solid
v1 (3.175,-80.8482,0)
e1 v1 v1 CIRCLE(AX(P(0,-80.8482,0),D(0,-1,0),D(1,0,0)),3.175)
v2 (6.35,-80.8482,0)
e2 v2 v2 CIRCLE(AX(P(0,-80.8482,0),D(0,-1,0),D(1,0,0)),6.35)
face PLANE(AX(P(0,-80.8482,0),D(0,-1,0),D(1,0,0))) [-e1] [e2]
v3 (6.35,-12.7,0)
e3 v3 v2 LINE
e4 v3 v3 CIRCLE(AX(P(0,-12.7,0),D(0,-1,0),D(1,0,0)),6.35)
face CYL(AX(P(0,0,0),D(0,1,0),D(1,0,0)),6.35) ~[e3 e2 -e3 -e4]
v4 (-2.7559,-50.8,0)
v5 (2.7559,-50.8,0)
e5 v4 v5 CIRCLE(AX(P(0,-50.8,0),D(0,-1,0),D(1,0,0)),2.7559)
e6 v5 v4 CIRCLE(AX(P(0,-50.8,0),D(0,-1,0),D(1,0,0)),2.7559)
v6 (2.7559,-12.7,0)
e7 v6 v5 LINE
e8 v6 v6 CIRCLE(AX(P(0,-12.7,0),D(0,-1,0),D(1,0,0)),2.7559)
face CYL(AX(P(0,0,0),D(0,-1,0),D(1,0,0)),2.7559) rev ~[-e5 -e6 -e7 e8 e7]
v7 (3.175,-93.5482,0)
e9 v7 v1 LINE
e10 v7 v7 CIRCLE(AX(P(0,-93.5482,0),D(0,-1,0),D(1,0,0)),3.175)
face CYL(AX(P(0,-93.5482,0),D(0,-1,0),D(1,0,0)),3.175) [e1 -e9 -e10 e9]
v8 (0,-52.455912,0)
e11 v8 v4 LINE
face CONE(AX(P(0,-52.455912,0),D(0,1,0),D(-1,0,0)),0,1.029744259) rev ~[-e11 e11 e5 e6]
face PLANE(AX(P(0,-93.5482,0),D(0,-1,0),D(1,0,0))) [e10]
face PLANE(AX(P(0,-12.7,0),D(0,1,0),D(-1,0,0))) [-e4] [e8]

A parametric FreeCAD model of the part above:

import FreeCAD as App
import Part
import Sketcher

V = App.Vector
Q = App.Units.Quantity

doc = App.newDocument("Part")
body = doc.addObject("PartDesign::Body", "Body")

# Sketch on XZ plane
sketch1 = body.newObject("Sketcher::SketchObject", "Sketch")
sketch1.AttachmentSupport = (doc.getObject("XZ_Plane"), [""])
sketch1.MapMode = "FlatFace"
sketch1.addGeometry(Part.Circle(V(0, 0, 0), V(0, 0, 1), 6), False)
sketch1.addConstraint([
    Sketcher.Constraint("Coincident", 0, 3, -1, 1),
    Sketcher.Constraint("Diameter", 0, Q("0.5 in")),
])
pad1 = body.newObject("PartDesign::Pad", "Pad")
pad1.Profile = sketch1
pad1.Length = Q("3.683 in")

# Sketch on XZ plane
sketch2 = body.newObject("Sketcher::SketchObject", "Sketch001")
sketch2.AttachmentSupport = (doc.getObject("XZ_Plane"), [""])
sketch2.MapMode = "FlatFace"
sketch2.AttachmentOffset = App.Placement(V(0, 0, 3.683 * 25.4), App.Rotation())
sketch2.addGeometry([
    Part.Circle(V(0, 0, 0), V(0, 0, 1), 6.3),
    Part.Circle(V(0, 0, 0), V(0, 0, 1), 3.2),
], False)
sketch2.addConstraint([
    Sketcher.Constraint("Coincident", 0, 3, -1, 1),
    Sketcher.Constraint("Coincident", 1, 3, -1, 1),
    Sketcher.Constraint("Diameter", 0, Q("0.5 in")),
    Sketcher.Constraint("Diameter", 1, Q("0.25 in")),
])
pocket1 = body.newObject("PartDesign::Pocket", "Pocket")
pocket1.Profile = sketch2
pocket1.Length = Q("0.5 in")

# Sketch on XZ plane
sketch3 = body.newObject("Sketcher::SketchObject", "Sketch002")
sketch3.AttachmentSupport = (doc.getObject("XZ_Plane"), [""])
sketch3.MapMode = "FlatFace"
sketch3.addGeometry(Part.Circle(V(0, 0, 0), V(0, 0, 1), 2.8), False)
sketch3.addConstraint([
    Sketcher.Constraint("Coincident", 0, 3, -1, 1),
    Sketcher.Constraint("Diameter", 0, Q("0.217 in")),
])
doc.recompute()
hole = body.newObject("PartDesign::Hole", "Hole")
hole.Profile = sketch3
hole.ThreadType = "None"
hole.Diameter = Q("0.217 in")
hole.DepthType = "Dimension"
hole.Depth = Q("2 in")
hole.DrillPoint = "Angled"
hole.DrillPointAngle = 118
hole.HoleCutType = "Counterbore"
hole.HoleCutDiameter = Q("0.5 in")
hole.HoleCutDepth = Q("0.5 in")
hole.Reversed = True

doc.recompute()
